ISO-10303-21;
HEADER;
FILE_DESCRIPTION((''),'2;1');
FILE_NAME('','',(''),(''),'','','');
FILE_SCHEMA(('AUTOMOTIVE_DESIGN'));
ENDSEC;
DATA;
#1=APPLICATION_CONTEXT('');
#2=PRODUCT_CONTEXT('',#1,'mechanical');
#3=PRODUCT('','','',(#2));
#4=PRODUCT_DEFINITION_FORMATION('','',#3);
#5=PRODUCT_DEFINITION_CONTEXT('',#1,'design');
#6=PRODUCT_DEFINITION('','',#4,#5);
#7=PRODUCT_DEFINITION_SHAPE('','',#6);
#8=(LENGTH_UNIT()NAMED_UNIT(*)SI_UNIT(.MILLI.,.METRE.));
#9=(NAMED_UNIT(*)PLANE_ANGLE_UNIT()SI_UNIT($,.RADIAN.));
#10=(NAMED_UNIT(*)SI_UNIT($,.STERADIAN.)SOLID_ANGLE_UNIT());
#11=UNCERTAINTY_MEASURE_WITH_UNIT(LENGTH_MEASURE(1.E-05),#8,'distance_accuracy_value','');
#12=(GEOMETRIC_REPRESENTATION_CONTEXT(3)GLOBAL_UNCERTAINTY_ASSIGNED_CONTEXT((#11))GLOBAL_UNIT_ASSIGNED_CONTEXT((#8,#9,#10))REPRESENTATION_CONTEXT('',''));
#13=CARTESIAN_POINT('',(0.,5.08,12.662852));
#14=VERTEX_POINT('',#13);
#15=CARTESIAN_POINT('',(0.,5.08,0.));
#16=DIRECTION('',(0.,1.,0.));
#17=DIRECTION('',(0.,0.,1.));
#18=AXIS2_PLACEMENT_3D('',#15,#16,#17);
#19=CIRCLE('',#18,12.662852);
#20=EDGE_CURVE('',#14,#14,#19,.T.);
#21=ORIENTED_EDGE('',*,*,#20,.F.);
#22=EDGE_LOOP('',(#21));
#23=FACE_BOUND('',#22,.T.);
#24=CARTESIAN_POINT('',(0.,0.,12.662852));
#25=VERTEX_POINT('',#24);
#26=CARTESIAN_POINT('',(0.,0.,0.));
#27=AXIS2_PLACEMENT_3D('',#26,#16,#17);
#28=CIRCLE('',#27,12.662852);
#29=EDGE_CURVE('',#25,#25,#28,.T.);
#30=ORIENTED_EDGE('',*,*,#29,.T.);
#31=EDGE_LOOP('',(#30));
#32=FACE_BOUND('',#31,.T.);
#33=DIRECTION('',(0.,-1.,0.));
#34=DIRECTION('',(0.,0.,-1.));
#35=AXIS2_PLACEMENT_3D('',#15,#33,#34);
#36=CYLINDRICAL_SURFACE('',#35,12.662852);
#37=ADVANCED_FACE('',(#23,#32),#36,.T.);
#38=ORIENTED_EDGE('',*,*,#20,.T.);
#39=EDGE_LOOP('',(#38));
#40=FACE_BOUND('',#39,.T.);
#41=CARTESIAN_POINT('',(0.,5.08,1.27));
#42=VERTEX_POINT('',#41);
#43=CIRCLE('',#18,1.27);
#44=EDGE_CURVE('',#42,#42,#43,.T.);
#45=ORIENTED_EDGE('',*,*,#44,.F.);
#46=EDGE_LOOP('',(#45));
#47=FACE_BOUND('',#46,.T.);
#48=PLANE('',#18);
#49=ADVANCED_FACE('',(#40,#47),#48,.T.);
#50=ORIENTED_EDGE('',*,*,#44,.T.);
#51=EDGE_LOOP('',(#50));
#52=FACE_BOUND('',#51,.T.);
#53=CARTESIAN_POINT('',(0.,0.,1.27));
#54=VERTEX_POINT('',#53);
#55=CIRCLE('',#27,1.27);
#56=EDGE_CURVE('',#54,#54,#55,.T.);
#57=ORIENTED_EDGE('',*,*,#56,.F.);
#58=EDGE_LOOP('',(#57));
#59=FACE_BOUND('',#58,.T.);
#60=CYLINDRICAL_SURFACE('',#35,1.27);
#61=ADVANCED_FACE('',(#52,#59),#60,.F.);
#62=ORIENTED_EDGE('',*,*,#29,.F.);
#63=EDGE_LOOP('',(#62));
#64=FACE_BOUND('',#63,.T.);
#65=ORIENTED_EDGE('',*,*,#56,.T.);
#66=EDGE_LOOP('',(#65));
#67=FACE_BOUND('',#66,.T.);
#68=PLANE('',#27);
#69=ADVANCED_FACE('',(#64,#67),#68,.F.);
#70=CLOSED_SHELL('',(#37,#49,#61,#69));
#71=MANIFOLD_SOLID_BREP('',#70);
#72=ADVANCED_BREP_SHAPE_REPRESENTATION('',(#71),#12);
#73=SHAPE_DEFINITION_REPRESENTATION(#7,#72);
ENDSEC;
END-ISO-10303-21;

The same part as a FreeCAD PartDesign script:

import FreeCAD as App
import Part
import Sketcher
from FreeCAD import Vector
Q = App.Units.Quantity

doc = App.newDocument("Part")
body = doc.addObject("PartDesign::Body", "Body")

# Sketch on XZ plane
sketch1 = doc.addObject("Sketcher::SketchObject", "Sketch")
body.addObject(sketch1)
sketch1.AttachmentSupport = (doc.XZ_Plane, [""])
sketch1.MapMode = "FlatFace"
sketch1.addGeometry([
    Part.Circle(Vector(0, 0, 0), Vector(0, 0, 1), 12.7),
    Part.Circle(Vector(0, 0, 0), Vector(0, 0, 1), 1.3),
], False)
sketch1.addConstraint([
    Sketcher.Constraint("Coincident", 0, 3, -1, 1),
    Sketcher.Constraint("Coincident", 1, 3, -1, 1),
    Sketcher.Constraint("Diameter", 1, Q("0.1 in")),
    Sketcher.Constraint("Diameter", 0, 25.325704),
])
pad1 = doc.addObject("PartDesign::Pad", "Pad")
body.addObject(pad1)
pad1.Profile = sketch1
pad1.Length = Q("0.2 in")
pad1.Reversed = True

doc.recompute()
